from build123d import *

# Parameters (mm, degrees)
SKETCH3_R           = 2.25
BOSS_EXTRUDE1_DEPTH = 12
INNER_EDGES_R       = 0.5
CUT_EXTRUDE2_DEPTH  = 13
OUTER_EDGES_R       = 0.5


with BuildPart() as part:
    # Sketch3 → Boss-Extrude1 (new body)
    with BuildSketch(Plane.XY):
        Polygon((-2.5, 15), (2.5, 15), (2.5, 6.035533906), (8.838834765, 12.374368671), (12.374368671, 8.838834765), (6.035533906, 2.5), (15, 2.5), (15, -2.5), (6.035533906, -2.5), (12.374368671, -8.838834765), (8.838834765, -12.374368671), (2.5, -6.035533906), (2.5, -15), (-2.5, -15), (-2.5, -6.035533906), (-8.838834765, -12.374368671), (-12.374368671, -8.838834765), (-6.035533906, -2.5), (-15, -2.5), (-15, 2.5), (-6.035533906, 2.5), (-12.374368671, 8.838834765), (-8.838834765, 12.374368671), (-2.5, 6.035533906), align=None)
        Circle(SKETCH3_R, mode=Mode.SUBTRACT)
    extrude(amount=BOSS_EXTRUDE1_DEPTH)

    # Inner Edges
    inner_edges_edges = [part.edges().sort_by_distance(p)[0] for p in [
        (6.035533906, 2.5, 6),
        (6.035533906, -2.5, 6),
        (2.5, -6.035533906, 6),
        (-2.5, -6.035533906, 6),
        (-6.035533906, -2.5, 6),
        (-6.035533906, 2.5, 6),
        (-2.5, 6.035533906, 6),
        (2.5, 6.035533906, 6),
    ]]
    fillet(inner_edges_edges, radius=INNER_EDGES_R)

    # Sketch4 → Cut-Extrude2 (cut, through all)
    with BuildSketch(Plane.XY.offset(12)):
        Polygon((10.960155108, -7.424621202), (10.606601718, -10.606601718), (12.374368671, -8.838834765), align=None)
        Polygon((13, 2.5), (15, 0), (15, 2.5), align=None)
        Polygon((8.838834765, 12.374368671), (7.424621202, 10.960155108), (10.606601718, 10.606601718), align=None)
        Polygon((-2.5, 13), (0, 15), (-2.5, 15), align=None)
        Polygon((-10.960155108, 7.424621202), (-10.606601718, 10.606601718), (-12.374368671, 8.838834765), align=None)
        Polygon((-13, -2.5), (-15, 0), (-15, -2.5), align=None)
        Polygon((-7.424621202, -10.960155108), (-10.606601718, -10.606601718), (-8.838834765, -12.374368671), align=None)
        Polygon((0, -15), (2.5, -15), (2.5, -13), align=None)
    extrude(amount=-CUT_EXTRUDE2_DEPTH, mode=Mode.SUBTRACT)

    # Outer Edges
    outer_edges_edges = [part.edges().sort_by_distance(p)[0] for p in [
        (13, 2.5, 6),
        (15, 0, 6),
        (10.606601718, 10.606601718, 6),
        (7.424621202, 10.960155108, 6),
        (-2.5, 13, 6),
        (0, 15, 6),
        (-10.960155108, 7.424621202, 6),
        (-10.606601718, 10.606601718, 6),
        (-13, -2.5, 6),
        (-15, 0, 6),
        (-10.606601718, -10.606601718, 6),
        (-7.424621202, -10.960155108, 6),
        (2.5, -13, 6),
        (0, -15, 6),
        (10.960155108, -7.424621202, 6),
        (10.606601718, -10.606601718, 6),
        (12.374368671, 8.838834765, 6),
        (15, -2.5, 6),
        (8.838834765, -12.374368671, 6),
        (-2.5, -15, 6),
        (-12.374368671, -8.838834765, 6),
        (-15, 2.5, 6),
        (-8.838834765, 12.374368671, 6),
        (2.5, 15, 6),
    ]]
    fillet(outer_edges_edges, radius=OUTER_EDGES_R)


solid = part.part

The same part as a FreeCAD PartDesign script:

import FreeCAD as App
import Part
import Sketcher

V = App.Vector
Q = App.Units.Quantity


def edges_at(feature, points):
    """Names of the edges that pass closest to the given points."""
    edges = feature.Shape.Edges
    near = lambda p: min(range(len(edges)), key=lambda i: edges[i].distToShape(Part.Vertex(*p))[0])
    return sorted({f"Edge{near(p) + 1}" for p in points})

doc = App.newDocument("Part")
body = doc.addObject("PartDesign::Body", "Body")

sketch1 = body.newObject("Sketcher::SketchObject", "Sketch")
sketch1.AttachmentSupport = (doc.getObject("XY_Plane"), [""])
sketch1.MapMode = "FlatFace"
sketch1.addGeometry(Part.LineSegment(V(2.5, 15, 0), V(-2.5, 15, 0)), False)
sketch1.addGeometry(Part.LineSegment(V(-2.5, 15, 0), V(-2.5, 6.035534, 0)), False)
sketch1.addGeometry(Part.LineSegment(V(-2.5, 6.035534, 0), V(-8.838835, 12.374369, 0)), False)
sketch1.addGeometry(Part.LineSegment(V(-8.838835, 12.374369, 0), V(-12.374369, 8.838835, 0)), False)
sketch1.addGeometry(Part.LineSegment(V(-12.374369, 8.838835, 0), V(-6.035534, 2.5, 0)), False)
sketch1.addGeometry(Part.LineSegment(V(-6.035534, 2.5, 0), V(-15, 2.5, 0)), False)
sketch1.addGeometry(Part.LineSegment(V(-15, 2.5, 0), V(-15, -2.5, 0)), False)
sketch1.addGeometry(Part.LineSegment(V(-15, -2.5, 0), V(-6.035534, -2.5, 0)), False)
sketch1.addGeometry(Part.LineSegment(V(-6.035534, -2.5, 0), V(-12.374369, -8.838835, 0)), False)
sketch1.addGeometry(Part.LineSegment(V(-12.374369, -8.838835, 0), V(-8.838835, -12.374369, 0)), False)
sketch1.addGeometry(Part.LineSegment(V(-8.838835, -12.374369, 0), V(-2.5, -6.035534, 0)), False)
sketch1.addGeometry(Part.LineSegment(V(-2.5, -6.035534, 0), V(-2.5, -15, 0)), False)
sketch1.addGeometry(Part.LineSegment(V(-2.5, -15, 0), V(2.5, -15, 0)), False)
sketch1.addGeometry(Part.LineSegment(V(2.5, -15, 0), V(2.5, -6.035534, 0)), False)
sketch1.addGeometry(Part.LineSegment(V(2.5, -6.035534, 0), V(8.838835, -12.374369, 0)), False)
sketch1.addGeometry(Part.LineSegment(V(8.838835, -12.374369, 0), V(12.374369, -8.838835, 0)), False)
sketch1.addGeometry(Part.LineSegment(V(12.374369, -8.838835, 0), V(6.035534, -2.5, 0)), False)
sketch1.addGeometry(Part.LineSegment(V(6.035534, -2.5, 0), V(15, -2.5, 0)), False)
sketch1.addGeometry(Part.LineSegment(V(15, -2.5, 0), V(15, 2.5, 0)), False)
sketch1.addGeometry(Part.LineSegment(V(15, 2.5, 0), V(6.035534, 2.5, 0)), False)
sketch1.addGeometry(Part.LineSegment(V(6.035534, 2.5, 0), V(12.374369, 8.838835, 0)), False)
sketch1.addGeometry(Part.LineSegment(V(12.374369, 8.838835, 0), V(8.838835, 12.374369, 0)), False)
sketch1.addGeometry(Part.LineSegment(V(8.838835, 12.374369, 0), V(2.5, 6.035534, 0)), False)
sketch1.addGeometry(Part.LineSegment(V(2.5, 6.035534, 0), V(2.5, 15, 0)), False)
sketch1.addGeometry(Part.Circle(V(0, 0, 0), V(0, 0, 1), 2.25), False)
sketch1.addConstraint(Sketcher.Constraint("Coincident", 0, 2, 1, 1))
sketch1.addConstraint(Sketcher.Constraint("Coincident", 1, 2, 2, 1))
sketch1.addConstraint(Sketcher.Constraint("Coincident", 2, 2, 3, 1))
sketch1.addConstraint(Sketcher.Constraint("Coincident", 3, 2, 4, 1))
sketch1.addConstraint(Sketcher.Constraint("Coincident", 4, 2, 5, 1))
sketch1.addConstraint(Sketcher.Constraint("Coincident", 5, 2, 6, 1))
sketch1.addConstraint(Sketcher.Constraint("Coincident", 6, 2, 7, 1))
sketch1.addConstraint(Sketcher.Constraint("Coincident", 7, 2, 8, 1))
sketch1.addConstraint(Sketcher.Constraint("Coincident", 8, 2, 9, 1))
sketch1.addConstraint(Sketcher.Constraint("Coincident", 9, 2, 10, 1))
sketch1.addConstraint(Sketcher.Constraint("Coincident", 10, 2, 11, 1))
sketch1.addConstraint(Sketcher.Constraint("Coincident", 11, 2, 12, 1))
sketch1.addConstraint(Sketcher.Constraint("Coincident", 12, 2, 13, 1))
sketch1.addConstraint(Sketcher.Constraint("Coincident", 13, 2, 14, 1))
sketch1.addConstraint(Sketcher.Constraint("Coincident", 14, 2, 15, 1))
sketch1.addConstraint(Sketcher.Constraint("Coincident", 15, 2, 16, 1))
sketch1.addConstraint(Sketcher.Constraint("Coincident", 16, 2, 17, 1))
sketch1.addConstraint(Sketcher.Constraint("Coincident", 17, 2, 18, 1))
sketch1.addConstraint(Sketcher.Constraint("Coincident", 18, 2, 19, 1))
sketch1.addConstraint(Sketcher.Constraint("Coincident", 19, 2, 20, 1))
sketch1.addConstraint(Sketcher.Constraint("Coincident", 20, 2, 21, 1))
sketch1.addConstraint(Sketcher.Constraint("Coincident", 21, 2, 22, 1))
sketch1.addConstraint(Sketcher.Constraint("Coincident", 22, 2, 23, 1))
sketch1.addConstraint(Sketcher.Constraint("Coincident", 23, 2, 0, 1))
sketch1.addConstraint(Sketcher.Constraint("Horizontal", 0))
sketch1.addConstraint(Sketcher.Constraint("Vertical", 1))
sketch1.addConstraint(Sketcher.Constraint("Horizontal", 5))
sketch1.addConstraint(Sketcher.Constraint("Vertical", 6))
sketch1.addConstraint(Sketcher.Constraint("Horizontal", 7))
sketch1.addConstraint(Sketcher.Constraint("Vertical", 11))
sketch1.addConstraint(Sketcher.Constraint("Horizontal", 12))
sketch1.addConstraint(Sketcher.Constraint("Vertical", 13))
sketch1.addConstraint(Sketcher.Constraint("Horizontal", 17))
sketch1.addConstraint(Sketcher.Constraint("Vertical", 18))
sketch1.addConstraint(Sketcher.Constraint("Horizontal", 19))
sketch1.addConstraint(Sketcher.Constraint("Vertical", 23))
sketch1.addConstraint(Sketcher.Constraint("Coincident", 24, 3, -1, 1))
sketch1.addConstraint(Sketcher.Constraint("Symmetric", 0, 2, 12, 2, -1, 1))
sketch1.addConstraint(Sketcher.Constraint("Symmetric", 2, 2, 14, 2, -1, 1))
sketch1.addConstraint(Sketcher.Constraint("Symmetric", 3, 2, 15, 2, -1, 1))
sketch1.addConstraint(Sketcher.Constraint("Symmetric", 4, 2, 16, 2, -1, 1))
sketch1.addConstraint(Sketcher.Constraint("Symmetric", 6, 2, 18, 2, -1, 1))
sketch1.addConstraint(Sketcher.Constraint("Symmetric", 8, 2, 20, 2, -1, 1))
sketch1.addConstraint(Sketcher.Constraint("Symmetric", 9, 2, 21, 2, -1, 1))
sketch1.addConstraint(Sketcher.Constraint("Symmetric", 10, 2, 22, 2, -1, 1))
sketch1.addConstraint(Sketcher.Constraint("Symmetric", 10, 2, 13, 2, -2))
sketch1.addConstraint(Sketcher.Constraint("Symmetric", 9, 2, 14, 2, -2))
sketch1.addConstraint(Sketcher.Constraint("Symmetric", 8, 2, 15, 2, -2))
sketch1.addConstraint(Sketcher.Constraint("Symmetric", 7, 2, 16, 2, -2))
sketch1.addConstraint(Sketcher.Constraint("Perpendicular", 2, 3))
sketch1.addConstraint(Sketcher.Constraint("Perpendicular", 3, 4))
sketch1.addConstraint(Sketcher.Constraint("Perpendicular", 4, 8))
sketch1.addConstraint(Sketcher.Constraint("Perpendicular", 9, 10))
sketch1.addConstraint(Sketcher.Constraint("Perpendicular", 16, 20))
sketch1.addConstraint(Sketcher.Constraint("Equal", 19, 1))
sketch1.addConstraint(Sketcher.Constraint("Equal", 12, 6))
sketch1.addConstraint(Sketcher.Constraint("Equal", 2, 4))
sketch1.addConstraint(Sketcher.Constraint("Diameter", 24, Q("4.5 mm")))
sketch1.addConstraint(Sketcher.Constraint("DistanceX", 0, 2, 0, 1, Q("5 mm")))
sketch1.addConstraint(Sketcher.Constraint("Distance", 3, Q("5 mm")))
sketch1.addConstraint(Sketcher.Constraint("DistanceY", -1, 1, 0, 2, Q("15 mm")))
sketch1.addConstraint(Sketcher.Constraint("DistanceY", 1, 2, 3, 2, Q("2.803301 mm")))
pad1 = body.newObject("PartDesign::Pad", "Pad")
pad1.Profile = sketch1
pad1.Length = 12
doc.recompute()

fillet = body.newObject("PartDesign::Fillet", "Fillet")
fillet.Base = (pad1, edges_at(pad1, [
    (6.036, 2.5, 6),
    (6.036, -2.5, 6),
    (2.5, -6.036, 6),
    (-2.5, -6.036, 6),
    (-6.036, -2.5, 6),
    (-6.036, 2.5, 6),
    (-2.5, 6.036, 6),
    (2.5, 6.036, 6),
]))
fillet.Radius = 0.5

sketch2 = body.newObject("Sketcher::SketchObject", "Sketch001")
sketch2.AttachmentSupport = (doc.getObject("XY_Plane"), [""])
sketch2.MapMode = "FlatFace"
sketch2.AttachmentOffset = App.Placement(V(0, 0, 12), App.Rotation())
sketch2.addGeometry(Part.LineSegment(V(10.960155, -7.424621, 0), V(10.606602, -10.606602, 0)), False)
sketch2.addGeometry(Part.LineSegment(V(10.606602, -10.606602, 0), V(12.374369, -8.838835, 0)), False)
sketch2.addGeometry(Part.LineSegment(V(12.374369, -8.838835, 0), V(10.960155, -7.424621, 0)), False)
sketch2.addGeometry(Part.LineSegment(V(13, 2.5, 0), V(15, 0, 0)), False)
sketch2.addGeometry(Part.LineSegment(V(15, 0, 0), V(15, 2.5, 0)), False)
sketch2.addGeometry(Part.LineSegment(V(15, 2.5, 0), V(13, 2.5, 0)), False)
sketch2.addGeometry(Part.LineSegment(V(8.838835, 12.374369, 0), V(7.424621, 10.960155, 0)), False)
sketch2.addGeometry(Part.LineSegment(V(7.424621, 10.960155, 0), V(10.606602, 10.606602, 0)), False)
sketch2.addGeometry(Part.LineSegment(V(10.606602, 10.606602, 0), V(8.838835, 12.374369, 0)), False)
sketch2.addGeometry(Part.LineSegment(V(-2.5, 13, 0), V(0, 15, 0)), False)
sketch2.addGeometry(Part.LineSegment(V(0, 15, 0), V(-2.5, 15, 0)), False)
sketch2.addGeometry(Part.LineSegment(V(-2.5, 15, 0), V(-2.5, 13, 0)), False)
sketch2.addGeometry(Part.LineSegment(V(-10.960155, 7.424621, 0), V(-10.606602, 10.606602, 0)), False)
sketch2.addGeometry(Part.LineSegment(V(-10.606602, 10.606602, 0), V(-12.374369, 8.838835, 0)), False)
sketch2.addGeometry(Part.LineSegment(V(-12.374369, 8.838835, 0), V(-10.960155, 7.424621, 0)), False)
sketch2.addGeometry(Part.LineSegment(V(-13, -2.5, 0), V(-15, 0, 0)), False)
sketch2.addGeometry(Part.LineSegment(V(-15, 0, 0), V(-15, -2.5, 0)), False)
sketch2.addGeometry(Part.LineSegment(V(-15, -2.5, 0), V(-13, -2.5, 0)), False)
sketch2.addGeometry(Part.LineSegment(V(-7.424621, -10.960155, 0), V(-10.606602, -10.606602, 0)), False)
sketch2.addGeometry(Part.LineSegment(V(-10.606602, -10.606602, 0), V(-8.838835, -12.374369, 0)), False)
sketch2.addGeometry(Part.LineSegment(V(-8.838835, -12.374369, 0), V(-7.424621, -10.960155, 0)), False)
sketch2.addGeometry(Part.LineSegment(V(0, -15, 0), V(2.5, -15, 0)), False)
sketch2.addGeometry(Part.LineSegment(V(2.5, -15, 0), V(2.5, -13, 0)), False)
sketch2.addGeometry(Part.LineSegment(V(2.5, -13, 0), V(0, -15, 0)), False)
sketch2.addConstraint(Sketcher.Constraint("Coincident", 0, 2, 1, 1))
sketch2.addConstraint(Sketcher.Constraint("Coincident", 1, 2, 2, 1))
sketch2.addConstraint(Sketcher.Constraint("Coincident", 2, 2, 0, 1))
sketch2.addConstraint(Sketcher.Constraint("Coincident", 3, 2, 4, 1))
sketch2.addConstraint(Sketcher.Constraint("Coincident", 4, 2, 5, 1))
sketch2.addConstraint(Sketcher.Constraint("Coincident", 5, 2, 3, 1))
sketch2.addConstraint(Sketcher.Constraint("Coincident", 6, 2, 7, 1))
sketch2.addConstraint(Sketcher.Constraint("Coincident", 7, 2, 8, 1))
sketch2.addConstraint(Sketcher.Constraint("Coincident", 8, 2, 6, 1))
sketch2.addConstraint(Sketcher.Constraint("Coincident", 9, 2, 10, 1))
sketch2.addConstraint(Sketcher.Constraint("Coincident", 10, 2, 11, 1))
sketch2.addConstraint(Sketcher.Constraint("Coincident", 11, 2, 9, 1))
sketch2.addConstraint(Sketcher.Constraint("Coincident", 12, 2, 13, 1))
sketch2.addConstraint(Sketcher.Constraint("Coincident", 13, 2, 14, 1))
sketch2.addConstraint(Sketcher.Constraint("Coincident", 14, 2, 12, 1))
sketch2.addConstraint(Sketcher.Constraint("Coincident", 15, 2, 16, 1))
sketch2.addConstraint(Sketcher.Constraint("Coincident", 16, 2, 17, 1))
sketch2.addConstraint(Sketcher.Constraint("Coincident", 17, 2, 15, 1))
sketch2.addConstraint(Sketcher.Constraint("Coincident", 18, 2, 19, 1))
sketch2.addConstraint(Sketcher.Constraint("Coincident", 19, 2, 20, 1))
sketch2.addConstraint(Sketcher.Constraint("Coincident", 20, 2, 18, 1))
sketch2.addConstraint(Sketcher.Constraint("Coincident", 21, 2, 22, 1))
sketch2.addConstraint(Sketcher.Constraint("Coincident", 22, 2, 23, 1))
sketch2.addConstraint(Sketcher.Constraint("Coincident", 23, 2, 21, 1))
sketch2.addConstraint(Sketcher.Constraint("Vertical", 4))
sketch2.addConstraint(Sketcher.Constraint("Horizontal", 5))
sketch2.addConstraint(Sketcher.Constraint("Horizontal", 10))
sketch2.addConstraint(Sketcher.Constraint("Vertical", 11))
sketch2.addConstraint(Sketcher.Constraint("Vertical", 16))
sketch2.addConstraint(Sketcher.Constraint("Horizontal", 17))
sketch2.addConstraint(Sketcher.Constraint("Horizontal", 21))
sketch2.addConstraint(Sketcher.Constraint("Vertical", 22))
sketch2.addConstraint(Sketcher.Constraint("Symmetric", 0, 2, 12, 2, -1, 1))
sketch2.addConstraint(Sketcher.Constraint("Symmetric", 1, 2, 13, 2, -1, 1))
sketch2.addConstraint(Sketcher.Constraint("Symmetric", 2, 2, 14, 2, -1, 1))
sketch2.addConstraint(Sketcher.Constraint("Symmetric", 3, 2, 15, 2, -1, 1))
sketch2.addConstraint(Sketcher.Constraint("Symmetric", 5, 2, 17, 2, -1, 1))
sketch2.addConstraint(Sketcher.Constraint("Symmetric", 7, 2, 18, 2, -1, 1))
sketch2.addConstraint(Sketcher.Constraint("Symmetric", 8, 2, 19, 2, -1, 1))
sketch2.addConstraint(Sketcher.Constraint("Symmetric", 6, 2, 20, 2, -1, 1))
sketch2.addConstraint(Sketcher.Constraint("Symmetric", 10, 2, 21, 2, -1, 1))
sketch2.addConstraint(Sketcher.Constraint("Symmetric", 7, 2, 12, 2, -2))
sketch2.addConstraint(Sketcher.Constraint("PointOnObject", 3, 2, -1))
sketch2.addConstraint(Sketcher.Constraint("PointOnObject", 9, 2, -2))
sketch2.addConstraint(Sketcher.Constraint("PointOnObject", 23, 2, -2))
sketch2.addConstraint(Sketcher.Constraint("Perpendicular", 1, 2))
sketch2.addConstraint(Sketcher.Constraint("Perpendicular", 2, 6))
sketch2.addConstraint(Sketcher.Constraint("Perpendicular", 0, 7))
sketch2.addConstraint(Sketcher.Constraint("Perpendicular", 6, 8))
sketch2.addConstraint(Sketcher.Constraint("Perpendicular", 3, 9))
sketch2.addConstraint(Sketcher.Constraint("Perpendicular", 15, 23))
sketch2.addConstraint(Sketcher.Constraint("Equal", 21, 4))
sketch2.addConstraint(Sketcher.Constraint("Equal", 0, 3))
sketch2.addConstraint(Sketcher.Constraint("Equal", 2, 6))
sketch2.addConstraint(Sketcher.Constraint("DistanceX", 5, 2, 5, 1, Q("2 mm")))
sketch2.addConstraint(Sketcher.Constraint("Angle", 1, Q("45 deg")))
sketch2.addConstraint(Sketcher.Constraint("Distance", 2, Q("2 mm")))
sketch2.addConstraint(Sketcher.Constraint("DistanceX", 10, 2, 10, 1, Q("2.5 mm")))
sketch2.addConstraint(Sketcher.Constraint("DistanceX", -1, 1, 3, 2, Q("15 mm")))
sketch2.addConstraint(Sketcher.Constraint("DistanceY", -1, 1, 9, 2, Q("15 mm")))
sketch2.addConstraint(Sketcher.Constraint("DistanceX", -1, 1, 0, 2, Q("10.606602 mm")))
sketch2.addConstraint(Sketcher.Constraint("DistanceY", 0, 2, -1, 1, Q("10.606602 mm")))
pocket1 = body.newObject("PartDesign::Pocket", "Pocket")
pocket1.Profile = sketch2
pocket1.Type = "ThroughAll"
doc.recompute()

fillet2 = body.newObject("PartDesign::Fillet", "Fillet001")
fillet2.Base = (pocket1, edges_at(pocket1, [
    (13, 2.5, 6),
    (15, 0, 6),
    (10.607, 10.607, 6),
    (7.425, 10.96, 6),
    (-2.5, 13, 6),
    (0, 15, 6),
    (-10.96, 7.425, 6),
    (-10.607, 10.607, 6),
    (-13, -2.5, 6),
    (-15, 0, 6),
    (-10.607, -10.607, 6),
    (-7.425, -10.96, 6),
    (2.5, -13, 6),
    (0, -15, 6),
    (10.96, -7.425, 6),
    (10.607, -10.607, 6),
    (12.374, 8.839, 6),
    (15, -2.5, 6),
    (8.839, -12.374, 6),
    (-2.5, -15, 6),
    (-12.374, -8.839, 6),
    (-15, 2.5, 6),
    (-8.839, 12.374, 6),
    (2.5, 15, 6),
]))
fillet2.Radius = 0.5

doc.recompute()
